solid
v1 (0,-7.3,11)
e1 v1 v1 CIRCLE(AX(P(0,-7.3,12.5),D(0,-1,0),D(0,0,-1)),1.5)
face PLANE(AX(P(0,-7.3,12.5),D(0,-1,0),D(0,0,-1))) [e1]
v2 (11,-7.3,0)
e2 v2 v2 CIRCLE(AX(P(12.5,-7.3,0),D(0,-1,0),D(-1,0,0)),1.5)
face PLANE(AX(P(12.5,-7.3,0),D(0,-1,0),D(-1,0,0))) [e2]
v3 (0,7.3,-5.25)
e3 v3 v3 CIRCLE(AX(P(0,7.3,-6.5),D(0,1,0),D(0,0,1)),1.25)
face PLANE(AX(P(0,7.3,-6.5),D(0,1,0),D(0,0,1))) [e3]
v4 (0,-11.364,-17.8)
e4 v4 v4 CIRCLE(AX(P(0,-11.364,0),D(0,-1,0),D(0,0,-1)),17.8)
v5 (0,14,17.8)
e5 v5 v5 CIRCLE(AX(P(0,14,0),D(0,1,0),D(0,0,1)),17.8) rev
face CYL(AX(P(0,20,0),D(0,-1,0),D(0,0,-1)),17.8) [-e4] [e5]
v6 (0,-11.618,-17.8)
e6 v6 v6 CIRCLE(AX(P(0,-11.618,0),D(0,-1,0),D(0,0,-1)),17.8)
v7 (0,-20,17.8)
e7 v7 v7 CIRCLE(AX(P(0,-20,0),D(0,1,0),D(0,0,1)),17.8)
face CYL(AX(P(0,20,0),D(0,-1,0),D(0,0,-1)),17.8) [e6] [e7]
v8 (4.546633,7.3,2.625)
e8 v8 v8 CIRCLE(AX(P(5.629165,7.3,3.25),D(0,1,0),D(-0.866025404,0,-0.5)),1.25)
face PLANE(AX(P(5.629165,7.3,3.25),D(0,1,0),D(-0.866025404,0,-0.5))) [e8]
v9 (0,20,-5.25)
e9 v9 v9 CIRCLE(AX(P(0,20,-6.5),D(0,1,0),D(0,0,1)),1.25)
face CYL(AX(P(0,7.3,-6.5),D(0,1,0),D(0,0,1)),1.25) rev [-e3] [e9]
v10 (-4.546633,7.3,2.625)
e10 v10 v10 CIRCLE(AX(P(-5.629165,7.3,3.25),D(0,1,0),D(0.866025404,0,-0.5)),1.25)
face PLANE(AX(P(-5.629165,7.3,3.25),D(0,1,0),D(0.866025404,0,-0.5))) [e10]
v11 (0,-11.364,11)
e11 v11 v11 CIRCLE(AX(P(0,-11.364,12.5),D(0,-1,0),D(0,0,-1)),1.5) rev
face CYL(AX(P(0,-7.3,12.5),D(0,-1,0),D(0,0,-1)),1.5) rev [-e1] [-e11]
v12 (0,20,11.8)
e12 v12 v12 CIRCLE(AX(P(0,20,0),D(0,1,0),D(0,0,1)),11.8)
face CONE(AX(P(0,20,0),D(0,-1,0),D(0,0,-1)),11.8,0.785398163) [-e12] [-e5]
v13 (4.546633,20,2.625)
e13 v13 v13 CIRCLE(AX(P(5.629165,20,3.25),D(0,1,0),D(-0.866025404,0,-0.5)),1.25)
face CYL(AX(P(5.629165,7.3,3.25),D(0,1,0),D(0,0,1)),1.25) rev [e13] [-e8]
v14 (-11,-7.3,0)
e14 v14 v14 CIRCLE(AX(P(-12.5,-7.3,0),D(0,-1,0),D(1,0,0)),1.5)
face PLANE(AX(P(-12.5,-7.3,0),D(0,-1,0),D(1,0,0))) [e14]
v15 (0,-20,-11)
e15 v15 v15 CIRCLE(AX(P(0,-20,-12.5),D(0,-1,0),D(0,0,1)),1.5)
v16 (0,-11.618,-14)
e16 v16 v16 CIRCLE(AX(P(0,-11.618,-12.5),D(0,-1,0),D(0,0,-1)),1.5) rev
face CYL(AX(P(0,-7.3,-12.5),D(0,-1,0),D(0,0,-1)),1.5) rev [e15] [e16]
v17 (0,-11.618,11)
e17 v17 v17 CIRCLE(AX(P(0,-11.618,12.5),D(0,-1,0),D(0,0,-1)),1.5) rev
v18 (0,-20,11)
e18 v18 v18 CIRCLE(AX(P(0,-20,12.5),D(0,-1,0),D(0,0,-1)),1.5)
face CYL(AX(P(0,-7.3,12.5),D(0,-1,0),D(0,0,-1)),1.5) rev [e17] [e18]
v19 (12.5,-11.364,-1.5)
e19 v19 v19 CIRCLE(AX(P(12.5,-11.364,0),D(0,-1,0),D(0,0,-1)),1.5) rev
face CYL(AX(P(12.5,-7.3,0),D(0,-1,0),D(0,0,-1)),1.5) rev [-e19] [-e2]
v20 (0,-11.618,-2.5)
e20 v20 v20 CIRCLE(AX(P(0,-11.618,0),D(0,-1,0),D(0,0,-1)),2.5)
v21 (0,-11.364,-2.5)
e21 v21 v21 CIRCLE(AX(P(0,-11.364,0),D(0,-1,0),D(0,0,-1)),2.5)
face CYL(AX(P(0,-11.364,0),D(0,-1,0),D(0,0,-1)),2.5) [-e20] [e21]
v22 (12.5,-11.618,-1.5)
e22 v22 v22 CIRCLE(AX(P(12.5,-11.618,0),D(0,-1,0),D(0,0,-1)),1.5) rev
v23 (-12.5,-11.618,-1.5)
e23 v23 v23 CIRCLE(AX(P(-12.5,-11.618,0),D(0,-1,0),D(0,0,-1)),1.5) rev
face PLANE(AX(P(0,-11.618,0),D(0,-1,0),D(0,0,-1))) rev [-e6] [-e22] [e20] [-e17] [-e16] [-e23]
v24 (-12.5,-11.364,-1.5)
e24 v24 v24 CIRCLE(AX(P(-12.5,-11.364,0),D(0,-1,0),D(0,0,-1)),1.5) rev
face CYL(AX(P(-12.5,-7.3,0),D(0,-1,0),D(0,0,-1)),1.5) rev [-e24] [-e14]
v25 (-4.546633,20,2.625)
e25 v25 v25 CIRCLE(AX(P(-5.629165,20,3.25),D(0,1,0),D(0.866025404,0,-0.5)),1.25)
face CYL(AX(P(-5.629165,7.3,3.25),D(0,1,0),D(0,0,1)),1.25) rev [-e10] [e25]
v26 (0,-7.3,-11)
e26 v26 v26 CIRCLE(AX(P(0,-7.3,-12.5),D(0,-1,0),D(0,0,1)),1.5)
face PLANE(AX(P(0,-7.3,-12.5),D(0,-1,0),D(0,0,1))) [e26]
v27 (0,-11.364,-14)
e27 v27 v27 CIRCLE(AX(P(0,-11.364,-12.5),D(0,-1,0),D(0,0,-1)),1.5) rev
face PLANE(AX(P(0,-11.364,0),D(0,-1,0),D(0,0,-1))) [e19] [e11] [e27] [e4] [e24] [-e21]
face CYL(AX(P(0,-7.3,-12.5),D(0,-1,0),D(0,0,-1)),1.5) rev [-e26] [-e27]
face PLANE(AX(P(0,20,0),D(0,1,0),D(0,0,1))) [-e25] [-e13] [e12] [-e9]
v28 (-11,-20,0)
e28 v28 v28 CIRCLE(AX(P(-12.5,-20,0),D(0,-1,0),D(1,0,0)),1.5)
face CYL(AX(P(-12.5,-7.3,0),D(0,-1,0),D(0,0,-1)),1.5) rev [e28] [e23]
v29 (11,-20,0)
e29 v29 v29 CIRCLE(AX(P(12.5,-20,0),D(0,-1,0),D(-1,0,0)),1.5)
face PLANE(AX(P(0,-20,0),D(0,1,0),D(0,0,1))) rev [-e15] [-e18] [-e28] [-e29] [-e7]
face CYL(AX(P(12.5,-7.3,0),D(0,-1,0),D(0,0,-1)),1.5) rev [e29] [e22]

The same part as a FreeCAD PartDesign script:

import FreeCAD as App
import Part
import Sketcher
from FreeCAD import Vector


def edges_at(feature, points):
    """Names of the edges that pass closest to the given points."""
    edges = feature.Shape.Edges
    near = lambda p: min(range(len(edges)), key=lambda i: edges[i].distToShape(Part.Vertex(*p))[0])
    return sorted({f"Edge{near(p) + 1}" for p in points})

doc = App.newDocument("Part")
body = doc.addObject("PartDesign::Body", "Body")

# Sketch on XZ plane
sketch1 = doc.addObject("Sketcher::SketchObject", "Sketch")
body.addObject(sketch1)
sketch1.AttachmentSupport = (doc.XZ_Plane, [""])
sketch1.MapMode = "FlatFace"
sketch1.addGeometry(Part.Circle(Vector(0, 0, 0), Vector(0, 0, 1), 18), False)
sketch1.addConstraint(Sketcher.Constraint("Coincident", 0, 3, -1, 1))
sketch1.addConstraint(Sketcher.Constraint("Diameter", 0, 35.6))
pad1 = doc.addObject("PartDesign::Pad", "Pad")
body.addObject(pad1)
pad1.Profile = sketch1
pad1.Length = 40
pad1.Midplane = True

# Sketch on XZ plane
sketch2 = doc.addObject("Sketcher::SketchObject", "Sketch001")
body.addObject(sketch2)
sketch2.AttachmentSupport = (doc.XZ_Plane, [""])
sketch2.MapMode = "FlatFace"
sketch2.AttachmentOffset = App.Placement(Vector(0, 0, -20), App.Rotation())
sketch2.addGeometry(Part.Circle(Vector(0, -6.5, 0), Vector(0, 0, 1), 1.2), False)
sketch2.addConstraint(Sketcher.Constraint("PointOnObject", 0, 3, -2))
sketch2.addConstraint(Sketcher.Constraint("Diameter", 0, 2.5))
sketch2.addConstraint(Sketcher.Constraint("DistanceY", 0, 3, -1, 1, 6.5))
pocket1 = doc.addObject("PartDesign::Pocket", "Pocket")
body.addObject(pocket1)
pocket1.Profile = sketch2
pocket1.Length = 12.7
pocket1.Reversed = True
doc.recompute()

polarpattern = doc.addObject("PartDesign::PolarPattern", "PolarPattern")
body.addObject(polarpattern)
polarpattern.Originals = [pocket1]
polarpattern.Axis = (doc.Y_Axis, [""])
polarpattern.Angle = 360
polarpattern.Occurrences = 3
body.Tip = polarpattern

# Sketch on XZ plane
sketch3 = doc.addObject("Sketcher::SketchObject", "Sketch002")
body.addObject(sketch3)
sketch3.AttachmentSupport = (doc.XZ_Plane, [""])
sketch3.MapMode = "FlatFace"
sketch3.AttachmentOffset = App.Placement(Vector(0, 0, 20), App.Rotation())
sketch3.addGeometry(Part.Circle(Vector(0, 12.5, 0), Vector(0, 0, 1), 1.5), False)
sketch3.addConstraint(Sketcher.Constraint("PointOnObject", 0, 3, -2))
sketch3.addConstraint(Sketcher.Constraint("Diameter", 0, 3.0))
sketch3.addConstraint(Sketcher.Constraint("DistanceY", -1, 1, 0, 3, 12.5))
pocket2 = doc.addObject("PartDesign::Pocket", "Pocket001")
body.addObject(pocket2)
pocket2.Profile = sketch3
pocket2.Length = 12.7
doc.recompute()

polarpattern2 = doc.addObject("PartDesign::PolarPattern", "PolarPattern001")
body.addObject(polarpattern2)
polarpattern2.Originals = [pocket2]
polarpattern2.Axis = (doc.Y_Axis, [""])
polarpattern2.Angle = 360
polarpattern2.Occurrences = 4
body.Tip = polarpattern2
doc.recompute()

chamfer = doc.addObject("PartDesign::Chamfer", "Chamfer")
body.addObject(chamfer)
chamfer.Base = (polarpattern2, edges_at(polarpattern2, [(-17.8, 20, 0)]))
chamfer.Size = 6

# Sketch on XZ plane
sketch4 = doc.addObject("Sketcher::SketchObject", "Sketch003")
body.addObject(sketch4)
sketch4.AttachmentSupport = (doc.XZ_Plane, [""])
sketch4.MapMode = "FlatFace"
sketch4.AttachmentOffset = App.Placement(Vector(0, 0, 11.618), App.Rotation())
sketch4.addGeometry(Part.Circle(Vector(0, 0, 0), Vector(0, 0, 1), 17.8), False)
sketch4.addGeometry(Part.Circle(Vector(0, 0, 0), Vector(0, 0, 1), 2.5), False)
sketch4.addConstraint(Sketcher.Constraint("Coincident", 0, 3, -1, 1))
sketch4.addConstraint(Sketcher.Constraint("Coincident", 1, 3, -1, 1))
sketch4.addConstraint(Sketcher.Constraint("Diameter", 1, 5.0))
sketch4.addConstraint(Sketcher.Constraint("Diameter", 0, 35.6))
pocket3 = doc.addObject("PartDesign::Pocket", "Pocket002")
body.addObject(pocket3)
pocket3.Profile = sketch4
pocket3.Length = 0.254

doc.recompute()
